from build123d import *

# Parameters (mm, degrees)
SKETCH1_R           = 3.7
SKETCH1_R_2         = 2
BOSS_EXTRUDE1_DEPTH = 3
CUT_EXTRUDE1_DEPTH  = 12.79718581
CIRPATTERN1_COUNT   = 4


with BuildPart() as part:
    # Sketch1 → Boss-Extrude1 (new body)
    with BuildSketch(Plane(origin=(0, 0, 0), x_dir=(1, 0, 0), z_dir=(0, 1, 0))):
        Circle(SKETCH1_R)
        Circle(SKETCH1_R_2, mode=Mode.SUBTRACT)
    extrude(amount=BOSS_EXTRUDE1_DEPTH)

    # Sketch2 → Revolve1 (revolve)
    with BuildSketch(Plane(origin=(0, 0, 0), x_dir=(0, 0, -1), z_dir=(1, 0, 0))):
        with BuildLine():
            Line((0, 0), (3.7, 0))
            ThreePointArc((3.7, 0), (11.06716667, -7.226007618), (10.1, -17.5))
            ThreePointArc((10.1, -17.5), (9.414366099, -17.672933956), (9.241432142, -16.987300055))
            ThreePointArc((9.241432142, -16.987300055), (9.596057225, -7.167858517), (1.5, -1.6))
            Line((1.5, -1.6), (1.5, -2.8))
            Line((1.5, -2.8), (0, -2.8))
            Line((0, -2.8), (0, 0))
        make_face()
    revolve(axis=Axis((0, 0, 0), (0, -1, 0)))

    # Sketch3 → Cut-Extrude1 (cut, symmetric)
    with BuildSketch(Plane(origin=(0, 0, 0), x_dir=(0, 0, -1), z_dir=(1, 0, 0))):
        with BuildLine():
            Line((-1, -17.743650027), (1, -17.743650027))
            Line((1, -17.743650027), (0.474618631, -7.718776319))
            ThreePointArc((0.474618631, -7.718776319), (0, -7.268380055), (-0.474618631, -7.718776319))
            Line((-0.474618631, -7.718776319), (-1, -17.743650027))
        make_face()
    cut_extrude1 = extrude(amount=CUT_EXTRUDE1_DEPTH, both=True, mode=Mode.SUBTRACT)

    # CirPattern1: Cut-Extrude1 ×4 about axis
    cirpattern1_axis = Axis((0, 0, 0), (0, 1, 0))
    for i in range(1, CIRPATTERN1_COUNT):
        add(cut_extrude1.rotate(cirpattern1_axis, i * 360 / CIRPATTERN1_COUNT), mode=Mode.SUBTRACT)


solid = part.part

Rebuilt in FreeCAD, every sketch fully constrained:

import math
import FreeCAD as App
import Part
import Sketcher

V = App.Vector
Q = App.Units.Quantity

doc = App.newDocument("Part")
body = doc.addObject("PartDesign::Body", "Body")

sketch1 = doc.addObject("Sketcher::SketchObject", "Sketch")
body.addObject(sketch1)
sketch1.AttachmentSupport = (doc.XZ_Plane, [""])
sketch1.MapMode = "FlatFace"
sketch1.addGeometry(Part.Circle(V(0, 0, 0), V(0, 0, 1), 3.7), False)
sketch1.addGeometry(Part.Circle(V(0, 0, 0), V(0, 0, 1), 2), False)
sketch1.addConstraint(Sketcher.Constraint("Coincident", 0, 3, -1, 1))
sketch1.addConstraint(Sketcher.Constraint("Coincident", 1, 3, -1, 1))
sketch1.addConstraint(Sketcher.Constraint("Diameter", 1, 4.0))
sketch1.addConstraint(Sketcher.Constraint("Diameter", 0, 7.4))
pad1 = doc.addObject("PartDesign::Pad", "Pad")
body.addObject(pad1)
pad1.Profile = sketch1
pad1.Length = 3
pad1.Reversed = True

sketch2 = doc.addObject("Sketcher::SketchObject", "Sketch001")
body.addObject(sketch2)
sketch2.AttachmentSupport = (doc.YZ_Plane, [""])
sketch2.MapMode = "FlatFace"
sketch2.addGeometry(Part.LineSegment(V(0, -3.7, 0), V(0, 0, 0)), False)
sketch2.addGeometry(Part.LineSegment(V(0, 0, 0), V(-2.8, 0, 0)), False)
sketch2.addGeometry(Part.LineSegment(V(-2.8, 0, 0), V(-2.8, -1.5, 0)), False)
sketch2.addGeometry(Part.LineSegment(V(-2.8, -1.5, 0), V(-1.6, -1.5, 0)), False)
sketch2.addGeometry(Part.ArcOfCircle(Part.Circle(V(-11.8, -0.5, 0), V(0, 0, 1), 10.2), math.radians(-121), math.radians(-6)), False)
sketch2.addGeometry(Part.ArcOfCircle(Part.Circle(V(-17.2, -9.7, 0), V(0, 0, 1), 0.5), math.radians(59), math.radians(239)), False)
sketch2.addGeometry(Part.ArcOfCircle(Part.Circle(V(-11.3, 0.2, 0), V(0, 0, 1), 12), math.radians(-121), math.radians(-19)), False)
sketch2.addConstraint(Sketcher.Constraint("Coincident", 0, 2, 1, 1))
sketch2.addConstraint(Sketcher.Constraint("Coincident", 1, 2, 2, 1))
sketch2.addConstraint(Sketcher.Constraint("Coincident", 2, 2, 3, 1))
sketch2.addConstraint(Sketcher.Constraint("Coincident", 3, 2, 4, 2))
sketch2.addConstraint(Sketcher.Constraint("Tangent", 4, 1, 5, 1))
sketch2.addConstraint(Sketcher.Constraint("Tangent", 5, 2, 6, 1))
sketch2.addConstraint(Sketcher.Constraint("Coincident", 6, 2, 0, 1))
sketch2.addConstraint(Sketcher.Constraint("Vertical", 0))
sketch2.addConstraint(Sketcher.Constraint("Horizontal", 1))
sketch2.addConstraint(Sketcher.Constraint("Vertical", 2))
sketch2.addConstraint(Sketcher.Constraint("Horizontal", 3))
sketch2.addConstraint(Sketcher.Constraint("Coincident", 0, 2, -1, 1))
sketch2.addConstraint(Sketcher.Constraint("Radius", 6, 12.0))
sketch2.addConstraint(Sketcher.Constraint("Radius", 5, 0.5))
sketch2.addConstraint(Sketcher.Constraint("DistanceX", 1, 2, 1, 1, 2.8))
sketch2.addConstraint(Sketcher.Constraint("DistanceX", 3, 1, 3, 2, 1.2))
sketch2.addConstraint(Sketcher.Constraint("DistanceY", 0, 1, 0, 2, 3.7))
sketch2.addConstraint(Sketcher.Constraint("DistanceY", 2, 2, 2, 1, 1.5))
sketch2.addConstraint(Sketcher.Constraint("DistanceX", 5, 2, -1, 1, 17.5))
sketch2.addConstraint(Sketcher.Constraint("DistanceY", 5, 2, -1, 1, 10.1))
sketch2.addConstraint(Sketcher.Constraint("Radius", 4, 10.205926))
revolution = doc.addObject("PartDesign::Revolution", "Revolution")
body.addObject(revolution)
revolution.Profile = sketch2
revolution.ReferenceAxis = (sketch2, ["H_Axis"])
revolution.Angle = 360

sketch3 = doc.addObject("Sketcher::SketchObject", "Sketch002")
body.addObject(sketch3)
sketch3.AttachmentSupport = (doc.YZ_Plane, [""])
sketch3.MapMode = "FlatFace"
sketch3.addGeometry(Part.LineSegment(V(-17.74, 1, 0), V(-17.74, -1, 0)), False)
sketch3.addGeometry(Part.LineSegment(V(-17.74, -1, 0), V(-7.72, -0.47, 0)), False)
sketch3.addGeometry(Part.ArcOfCircle(Part.Circle(V(-7.74, 0, 0), V(0, 0, 1), 0.48), math.radians(-87), math.radians(87)), False)
sketch3.addGeometry(Part.LineSegment(V(-7.72, 0.47, 0), V(-17.74, 1, 0)), False)
sketch3.addConstraint(Sketcher.Constraint("Coincident", 0, 2, 1, 1))
sketch3.addConstraint(Sketcher.Constraint("Tangent", 1, 2, 2, 1))
sketch3.addConstraint(Sketcher.Constraint("Tangent", 2, 2, 3, 1))
sketch3.addConstraint(Sketcher.Constraint("Coincident", 3, 2, 0, 1))
sketch3.addConstraint(Sketcher.Constraint("Vertical", 0))
sketch3.addConstraint(Sketcher.Constraint("Symmetric", 1, 2, 2, 2, -1))
sketch3.addConstraint(Sketcher.Constraint("DistanceY", 0, 2, 0, 1, 2.0))
sketch3.addConstraint(Sketcher.Constraint("Angle", 1, Q("3 deg")))
sketch3.addConstraint(Sketcher.Constraint("DistanceX", 0, 2, 2, 3, 10.0))
sketch3.addConstraint(Sketcher.Constraint("DistanceX", 2, 3, -1, 1, 7.74365))
pocket1 = doc.addObject("PartDesign::Pocket", "Pocket")
body.addObject(pocket1)
pocket1.Profile = sketch3
pocket1.Length = 25.594372
pocket1.Midplane = True
doc.recompute()

polarpattern = doc.addObject("PartDesign::PolarPattern", "PolarPattern")
body.addObject(polarpattern)
polarpattern.Originals = [pocket1]
polarpattern.Axis = (doc.Y_Axis, [""])
polarpattern.Angle = 360
polarpattern.Occurrences = 4
body.Tip = polarpattern

doc.recompute()
